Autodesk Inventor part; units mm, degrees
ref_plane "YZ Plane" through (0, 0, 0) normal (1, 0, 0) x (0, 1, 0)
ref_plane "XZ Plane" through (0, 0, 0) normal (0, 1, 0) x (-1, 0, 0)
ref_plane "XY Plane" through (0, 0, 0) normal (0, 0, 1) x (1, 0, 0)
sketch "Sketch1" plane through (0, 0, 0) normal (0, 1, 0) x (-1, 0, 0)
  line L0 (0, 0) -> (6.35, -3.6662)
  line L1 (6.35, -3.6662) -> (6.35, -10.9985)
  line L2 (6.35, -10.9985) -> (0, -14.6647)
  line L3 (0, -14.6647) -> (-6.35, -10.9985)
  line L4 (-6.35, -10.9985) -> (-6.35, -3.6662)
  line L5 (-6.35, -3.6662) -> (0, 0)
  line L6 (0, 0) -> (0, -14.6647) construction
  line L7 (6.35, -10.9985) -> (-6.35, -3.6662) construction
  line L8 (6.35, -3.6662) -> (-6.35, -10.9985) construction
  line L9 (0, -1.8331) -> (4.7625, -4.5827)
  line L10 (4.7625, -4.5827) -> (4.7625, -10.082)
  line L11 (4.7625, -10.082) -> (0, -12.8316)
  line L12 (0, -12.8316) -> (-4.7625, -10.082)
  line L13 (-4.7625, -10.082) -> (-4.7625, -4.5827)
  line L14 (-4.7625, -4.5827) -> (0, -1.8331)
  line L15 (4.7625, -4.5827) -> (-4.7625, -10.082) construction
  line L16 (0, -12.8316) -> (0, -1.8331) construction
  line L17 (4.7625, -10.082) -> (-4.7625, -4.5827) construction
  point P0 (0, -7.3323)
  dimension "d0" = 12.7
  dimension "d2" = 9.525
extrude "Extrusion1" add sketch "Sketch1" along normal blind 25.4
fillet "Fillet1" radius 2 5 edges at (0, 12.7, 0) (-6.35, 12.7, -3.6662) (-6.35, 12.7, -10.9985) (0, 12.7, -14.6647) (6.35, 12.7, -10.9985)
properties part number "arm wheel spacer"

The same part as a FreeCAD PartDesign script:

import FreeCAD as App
import Part
import Sketcher
from FreeCAD import Vector
Q = App.Units.Quantity


def edges_at(feature, points):
    """Names of the edges that pass closest to the given points."""
    edges = feature.Shape.Edges
    near = lambda p: min(range(len(edges)), key=lambda i: edges[i].distToShape(Part.Vertex(*p))[0])
    return sorted({f"Edge{near(p) + 1}" for p in points})


def add_polygon(sketch, points):
    """Adds a closed chain of lines whose ends are joined by coincident constraints."""
    first, n = sketch.GeometryCount, len(points)
    for a, b in zip(points, points[1:] + points[:1]):
        sketch.addGeometry(Part.LineSegment(App.Vector(*a, 0), App.Vector(*b, 0)), False)
    for i in range(n):
        sketch.addConstraint(Sketcher.Constraint("Coincident", first + i, 2, first + (i + 1) % n, 1))

doc = App.newDocument("Part")
body = doc.addObject("PartDesign::Body", "Body")

sketch1 = doc.addObject("Sketcher::SketchObject", "Sketch")
body.addObject(sketch1)
sketch1.AttachmentSupport = (doc.XZ_Plane, [""])
sketch1.MapMode = "FlatFace"
add_polygon(sketch1, [(-6, -4), (0, 0), (6, -4), (6, -11), (0, -15), (-6, -11)])
add_polygon(sketch1, [(5, -5), (0, -2), (-5, -5), (-5, -10), (0, -13), (5, -10)])
sketch1.addConstraint(Sketcher.Constraint("Vertical", 2))
sketch1.addConstraint(Sketcher.Constraint("Vertical", 5))
sketch1.addConstraint(Sketcher.Constraint("Vertical", 8))
sketch1.addConstraint(Sketcher.Constraint("Vertical", 11))
sketch1.addConstraint(Sketcher.Constraint("Coincident", 0, 2, -1, 1))
sketch1.addConstraint(Sketcher.Constraint("Symmetric", 2, 2, 4, 2, -2))
sketch1.addConstraint(Sketcher.Constraint("Symmetric", 8, 2, 10, 2, -2))
sketch1.addConstraint(Sketcher.Constraint("PointOnObject", 3, 2, -2))
sketch1.addConstraint(Sketcher.Constraint("PointOnObject", 6, 2, -2))
sketch1.addConstraint(Sketcher.Constraint("PointOnObject", 9, 2, -2))
sketch1.addConstraint(Sketcher.Constraint("Parallel", 0, 3))
sketch1.addConstraint(Sketcher.Constraint("Parallel", 1, 4))
sketch1.addConstraint(Sketcher.Constraint("Parallel", 4, 6))
sketch1.addConstraint(Sketcher.Constraint("Parallel", 3, 7))
sketch1.addConstraint(Sketcher.Constraint("Parallel", 6, 9))
sketch1.addConstraint(Sketcher.Constraint("DistanceX", 4, 2, 2, 2, Q("12.7 mm")))
sketch1.addConstraint(Sketcher.Constraint("Angle", 0, Q("30.0002 deg")))
sketch1.addConstraint(Sketcher.Constraint("DistanceX", 8, 2, 10, 2, Q("9.525 mm")))
sketch1.addConstraint(Sketcher.Constraint("DistanceY", 2, 2, 2, 1, Q("7.3323 mm")))
sketch1.addConstraint(Sketcher.Constraint("DistanceY", 8, 2, 8, 1, Q("5.4993 mm")))
sketch1.addConstraint(Sketcher.Constraint("DistanceY", 6, 2, -1, 1, Q("1.833 mm")))
pad1 = doc.addObject("PartDesign::Pad", "Pad")
body.addObject(pad1)
pad1.Profile = sketch1
pad1.Length = 25.4
pad1.Reversed = True
doc.recompute()

fillet = doc.addObject("PartDesign::Fillet", "Fillet")
body.addObject(fillet)
fillet.Base = (pad1, edges_at(pad1, [
    (0, 12.7, 0),
    (-6.35, 12.7, -3.666),
    (-6.35, 12.7, -10.998),
    (0, 12.7, -14.665),
    (6.35, 12.7, -10.998),
]))
fillet.Radius = 2

doc.recompute()
